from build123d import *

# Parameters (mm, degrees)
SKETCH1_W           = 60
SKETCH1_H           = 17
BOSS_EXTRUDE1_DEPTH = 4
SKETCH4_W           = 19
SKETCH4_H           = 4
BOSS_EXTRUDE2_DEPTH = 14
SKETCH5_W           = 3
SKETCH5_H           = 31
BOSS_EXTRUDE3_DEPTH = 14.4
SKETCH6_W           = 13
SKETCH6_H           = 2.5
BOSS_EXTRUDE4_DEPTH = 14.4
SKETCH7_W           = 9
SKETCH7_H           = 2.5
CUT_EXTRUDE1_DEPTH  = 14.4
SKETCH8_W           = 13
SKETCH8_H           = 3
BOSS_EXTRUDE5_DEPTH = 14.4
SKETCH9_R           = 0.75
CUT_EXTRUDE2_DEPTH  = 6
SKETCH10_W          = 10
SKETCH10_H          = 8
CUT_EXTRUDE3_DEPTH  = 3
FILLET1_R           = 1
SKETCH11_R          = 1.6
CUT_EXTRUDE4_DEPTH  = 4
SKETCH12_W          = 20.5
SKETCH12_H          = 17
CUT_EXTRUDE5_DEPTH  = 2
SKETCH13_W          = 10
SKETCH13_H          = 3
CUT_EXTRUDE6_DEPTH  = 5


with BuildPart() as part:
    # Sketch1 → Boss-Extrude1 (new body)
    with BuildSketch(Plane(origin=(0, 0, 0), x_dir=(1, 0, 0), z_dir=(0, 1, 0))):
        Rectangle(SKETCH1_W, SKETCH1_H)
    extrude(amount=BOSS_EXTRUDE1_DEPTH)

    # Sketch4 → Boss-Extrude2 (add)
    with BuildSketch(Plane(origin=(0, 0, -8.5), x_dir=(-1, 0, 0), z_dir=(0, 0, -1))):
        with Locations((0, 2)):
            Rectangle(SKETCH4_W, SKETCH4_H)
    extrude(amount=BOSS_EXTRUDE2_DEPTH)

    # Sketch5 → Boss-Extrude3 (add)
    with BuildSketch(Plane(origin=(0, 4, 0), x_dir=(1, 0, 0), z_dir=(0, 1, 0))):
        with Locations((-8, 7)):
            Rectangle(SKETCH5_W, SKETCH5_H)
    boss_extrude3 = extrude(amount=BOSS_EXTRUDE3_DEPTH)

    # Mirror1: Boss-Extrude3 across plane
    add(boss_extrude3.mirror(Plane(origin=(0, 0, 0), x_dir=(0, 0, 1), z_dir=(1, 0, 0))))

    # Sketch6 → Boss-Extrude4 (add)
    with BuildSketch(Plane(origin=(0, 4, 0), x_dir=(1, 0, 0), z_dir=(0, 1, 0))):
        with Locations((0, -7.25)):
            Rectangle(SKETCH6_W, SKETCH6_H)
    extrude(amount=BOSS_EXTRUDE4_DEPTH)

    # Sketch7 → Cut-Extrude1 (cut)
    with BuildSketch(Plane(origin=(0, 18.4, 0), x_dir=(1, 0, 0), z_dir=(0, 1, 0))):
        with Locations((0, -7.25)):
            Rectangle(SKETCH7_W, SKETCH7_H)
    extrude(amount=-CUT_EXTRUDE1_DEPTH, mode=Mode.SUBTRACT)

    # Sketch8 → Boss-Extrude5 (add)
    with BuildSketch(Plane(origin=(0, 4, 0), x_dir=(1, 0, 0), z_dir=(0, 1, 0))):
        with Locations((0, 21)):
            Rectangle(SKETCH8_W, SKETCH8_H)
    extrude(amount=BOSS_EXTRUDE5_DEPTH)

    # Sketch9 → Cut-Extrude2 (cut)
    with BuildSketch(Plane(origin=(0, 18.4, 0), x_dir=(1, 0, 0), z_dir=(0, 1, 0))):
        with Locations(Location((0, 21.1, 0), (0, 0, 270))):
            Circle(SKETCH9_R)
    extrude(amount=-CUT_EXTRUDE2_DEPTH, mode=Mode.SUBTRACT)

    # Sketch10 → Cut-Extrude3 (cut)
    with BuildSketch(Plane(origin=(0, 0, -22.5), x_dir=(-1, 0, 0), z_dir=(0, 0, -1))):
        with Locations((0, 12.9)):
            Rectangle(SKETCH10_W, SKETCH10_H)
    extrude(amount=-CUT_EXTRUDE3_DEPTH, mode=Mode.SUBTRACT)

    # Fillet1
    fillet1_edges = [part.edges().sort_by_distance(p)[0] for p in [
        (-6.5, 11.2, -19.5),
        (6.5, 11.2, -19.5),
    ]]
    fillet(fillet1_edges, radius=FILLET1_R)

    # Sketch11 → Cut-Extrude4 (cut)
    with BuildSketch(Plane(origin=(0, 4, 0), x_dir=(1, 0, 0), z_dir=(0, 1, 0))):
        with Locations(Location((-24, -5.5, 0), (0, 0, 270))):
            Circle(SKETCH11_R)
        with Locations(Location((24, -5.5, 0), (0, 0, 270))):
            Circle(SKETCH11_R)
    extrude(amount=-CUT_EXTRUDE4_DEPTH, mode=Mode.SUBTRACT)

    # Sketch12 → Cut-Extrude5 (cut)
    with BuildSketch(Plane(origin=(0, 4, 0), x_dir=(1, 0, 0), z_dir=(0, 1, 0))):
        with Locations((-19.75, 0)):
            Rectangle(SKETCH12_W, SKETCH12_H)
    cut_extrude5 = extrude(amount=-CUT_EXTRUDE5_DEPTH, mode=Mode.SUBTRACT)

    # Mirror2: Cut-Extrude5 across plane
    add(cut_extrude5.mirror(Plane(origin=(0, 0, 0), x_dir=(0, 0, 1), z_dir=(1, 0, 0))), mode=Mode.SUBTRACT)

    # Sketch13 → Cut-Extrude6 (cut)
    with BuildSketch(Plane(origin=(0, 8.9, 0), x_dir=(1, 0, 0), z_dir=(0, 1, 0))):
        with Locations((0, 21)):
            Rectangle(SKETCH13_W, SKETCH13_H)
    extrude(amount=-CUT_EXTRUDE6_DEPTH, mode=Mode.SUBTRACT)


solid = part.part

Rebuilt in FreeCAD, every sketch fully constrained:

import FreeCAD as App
import Part
import Sketcher
from FreeCAD import Vector
Q = App.Units.Quantity


def edges_at(feature, points):
    """Names of the edges that pass closest to the given points."""
    edges = feature.Shape.Edges
    near = lambda p: min(range(len(edges)), key=lambda i: edges[i].distToShape(Part.Vertex(*p))[0])
    return sorted({f"Edge{near(p) + 1}" for p in points})

doc = App.newDocument("Part")
params = doc.addObject("Spreadsheet::Sheet", "Params")
for row, (alias, value) in enumerate([
    ("sketch1_width", "60 mm"),
    ("sketch1_height", "17 mm"),
    ("pad1_length", "4 mm"),
    ("sketch2_width", "19 mm"),
    ("sketch2_height", "4 mm"),
    ("pad2_length", "14 mm"),
    ("sketch3_width", "3 mm"),
    ("sketch3_height", "31 mm"),
    ("pad3_length", "14.4 mm"),
    ("sketch4_width", "13 mm"),
    ("sketch4_height", "2.5 mm"),
    ("pad4_length", "14.4 mm"),
    ("sketch5_width", "9 mm"),
    ("sketch5_height", "2.5 mm"),
    ("pocket1_length", "14.4 mm"),
    ("sketch6_width", "13 mm"),
    ("sketch6_height", "3 mm"),
    ("pad5_length", "14.4 mm"),
    ("sketch7_diameter", "1.5 mm"),
    ("pocket2_length", "6 mm"),
    ("sketch8_width", "10 mm"),
    ("sketch8_height", "8 mm"),
    ("pocket3_length", "3 mm"),
    ("fillet_radius", "1 mm"),
    ("sketch9_diameter", "3.2 mm"),
    ("pocket4_length", "4 mm"),
    ("sketch10_height", "17 mm"),
    ("sketch10_width", "20.5 mm"),
    ("pocket5_length", "2 mm"),
    ("sketch11_width", "10 mm"),
    ("sketch11_height", "3 mm"),
    ("pocket6_length", "5 mm"),
], start=1):
    params.set(f"A{row}", alias)
    params.set(f"B{row}", "=" + value)
    params.setAlias(f"B{row}", alias)

body = doc.addObject("PartDesign::Body", "Body")

sketch1 = doc.addObject("Sketcher::SketchObject", "Sketch")
body.addObject(sketch1)
sketch1.AttachmentSupport = (doc.XZ_Plane, [""])
sketch1.MapMode = "FlatFace"
sketch1.addGeometry([
    Part.LineSegment(Vector(-30, -8, 0), Vector(-30, 8, 0)),
    Part.LineSegment(Vector(-30, 8, 0), Vector(30, 8, 0)),
    Part.LineSegment(Vector(30, 8, 0), Vector(30, -8, 0)),
    Part.LineSegment(Vector(30, -8, 0), Vector(-30, -8, 0)),
], False)
sketch1.addConstraint([
    Sketcher.Constraint("Coincident", 0, 2, 1, 1),
    Sketcher.Constraint("Coincident", 1, 2, 2, 1),
    Sketcher.Constraint("Coincident", 2, 2, 3, 1),
    Sketcher.Constraint("Coincident", 3, 2, 0, 1),
    Sketcher.Constraint("Vertical", 0),
    Sketcher.Constraint("Horizontal", 1),
    Sketcher.Constraint("Vertical", 2),
    Sketcher.Constraint("Horizontal", 3),
    Sketcher.Constraint("Symmetric", 0, 2, 2, 2, -1, 1),
    Sketcher.Constraint("DistanceX", 1, 1, 1, 2, Q("60 mm")),
    Sketcher.Constraint("DistanceY", 0, 1, 0, 2, Q("17 mm")),
])
sketch1.setExpression("Constraints[9]", "Params.sketch1_width")
sketch1.setExpression("Constraints[10]", "Params.sketch1_height")
pad1 = doc.addObject("PartDesign::Pad", "Pad")
body.addObject(pad1)
pad1.Profile = sketch1
pad1.setExpression("Length", "Params.pad1_length")
pad1.Reversed = True

sketch2 = doc.addObject("Sketcher::SketchObject", "Sketch001")
body.addObject(sketch2)
sketch2.AttachmentSupport = (doc.XY_Plane, [""])
sketch2.MapMode = "FlatFace"
sketch2.AttachmentOffset = App.Placement(Vector(0, 0, -8.5), App.Rotation())
sketch2.addGeometry([
    Part.LineSegment(Vector(9.5, 4, 0), Vector(9.5, 0, 0)),
    Part.LineSegment(Vector(9.5, 0, 0), Vector(-9.5, 0, 0)),
    Part.LineSegment(Vector(-9.5, 0, 0), Vector(-9.5, 4, 0)),
    Part.LineSegment(Vector(-9.5, 4, 0), Vector(9.5, 4, 0)),
], False)
sketch2.addConstraint([
    Sketcher.Constraint("Coincident", 0, 2, 1, 1),
    Sketcher.Constraint("Coincident", 1, 2, 2, 1),
    Sketcher.Constraint("Coincident", 2, 2, 3, 1),
    Sketcher.Constraint("Coincident", 3, 2, 0, 1),
    Sketcher.Constraint("Vertical", 0),
    Sketcher.Constraint("Horizontal", 1),
    Sketcher.Constraint("Vertical", 2),
    Sketcher.Constraint("Horizontal", 3),
    Sketcher.Constraint("Symmetric", 0, 2, 1, 2, -1, 1),
    Sketcher.Constraint("DistanceX", 1, 2, 1, 1, Q("19 mm")),
    Sketcher.Constraint("DistanceY", 0, 2, 0, 1, Q("4 mm")),
])
sketch2.setExpression("Constraints[9]", "Params.sketch2_width")
sketch2.setExpression("Constraints[10]", "Params.sketch2_height")
pad2 = doc.addObject("PartDesign::Pad", "Pad001")
body.addObject(pad2)
pad2.Profile = sketch2
pad2.setExpression("Length", "Params.pad2_length")
pad2.Reversed = True

sketch3 = doc.addObject("Sketcher::SketchObject", "Sketch002")
body.addObject(sketch3)
sketch3.AttachmentSupport = (doc.XZ_Plane, [""])
sketch3.MapMode = "FlatFace"
sketch3.AttachmentOffset = App.Placement(Vector(0, 0, -4), App.Rotation())
sketch3.addGeometry([
    Part.LineSegment(Vector(-9.5, -22.5, 0), Vector(-9.5, 8.5, 0)),
    Part.LineSegment(Vector(-9.5, 8.5, 0), Vector(-6.5, 8.5, 0)),
    Part.LineSegment(Vector(-6.5, 8.5, 0), Vector(-6.5, -22.5, 0)),
    Part.LineSegment(Vector(-6.5, -22.5, 0), Vector(-9.5, -22.5, 0)),
], False)
sketch3.addConstraint([
    Sketcher.Constraint("Coincident", 0, 2, 1, 1),
    Sketcher.Constraint("Coincident", 1, 2, 2, 1),
    Sketcher.Constraint("Coincident", 2, 2, 3, 1),
    Sketcher.Constraint("Coincident", 3, 2, 0, 1),
    Sketcher.Constraint("Vertical", 0),
    Sketcher.Constraint("Horizontal", 1),
    Sketcher.Constraint("Vertical", 2),
    Sketcher.Constraint("Horizontal", 3),
    Sketcher.Constraint("DistanceX", 1, 1, 1, 2, Q("3 mm")),
    Sketcher.Constraint("DistanceY", 0, 1, 0, 2, Q("31 mm")),
    Sketcher.Constraint("DistanceX", 0, 2, -1, 1, Q("9.5 mm")),
    Sketcher.Constraint("DistanceY", -1, 1, 0, 2, Q("8.5 mm")),
])
sketch3.setExpression("Constraints[8]", "Params.sketch3_width")
sketch3.setExpression("Constraints[9]", "Params.sketch3_height")
pad3 = doc.addObject("PartDesign::Pad", "Pad002")
body.addObject(pad3)
pad3.Profile = sketch3
pad3.setExpression("Length", "Params.pad3_length")
pad3.Reversed = True
doc.recompute()

mirrored = doc.addObject("PartDesign::Mirrored", "Mirrored")
body.addObject(mirrored)
mirrored.Originals = [pad3]
mirrored.MirrorPlane = (doc.YZ_Plane, [""])
body.Tip = mirrored

sketch4 = doc.addObject("Sketcher::SketchObject", "Sketch003")
body.addObject(sketch4)
sketch4.AttachmentSupport = (doc.XZ_Plane, [""])
sketch4.MapMode = "FlatFace"
sketch4.AttachmentOffset = App.Placement(Vector(0, 0, -4), App.Rotation())
sketch4.addGeometry([
    Part.LineSegment(Vector(-6.5, 6, 0), Vector(-6.5, 8.5, 0)),
    Part.LineSegment(Vector(-6.5, 8.5, 0), Vector(6.5, 8.5, 0)),
    Part.LineSegment(Vector(6.5, 8.5, 0), Vector(6.5, 6, 0)),
    Part.LineSegment(Vector(6.5, 6, 0), Vector(-6.5, 6, 0)),
], False)
sketch4.addConstraint([
    Sketcher.Constraint("Coincident", 0, 2, 1, 1),
    Sketcher.Constraint("Coincident", 1, 2, 2, 1),
    Sketcher.Constraint("Coincident", 2, 2, 3, 1),
    Sketcher.Constraint("Coincident", 3, 2, 0, 1),
    Sketcher.Constraint("Vertical", 0),
    Sketcher.Constraint("Horizontal", 1),
    Sketcher.Constraint("Vertical", 2),
    Sketcher.Constraint("Horizontal", 3),
    Sketcher.Constraint("DistanceX", 1, 1, 1, 2, Q("13 mm")),
    Sketcher.Constraint("DistanceY", 0, 1, 0, 2, Q("2.5 mm")),
    Sketcher.Constraint("DistanceY", -1, 1, 2, 2, Q("6 mm")),
    Sketcher.Constraint("DistanceX", 0, 2, -1, 1, Q("6.5 mm")),
])
sketch4.setExpression("Constraints[8]", "Params.sketch4_width")
sketch4.setExpression("Constraints[9]", "Params.sketch4_height")
pad4 = doc.addObject("PartDesign::Pad", "Pad003")
body.addObject(pad4)
pad4.Profile = sketch4
pad4.setExpression("Length", "Params.pad4_length")
pad4.Reversed = True

sketch5 = doc.addObject("Sketcher::SketchObject", "Sketch004")
body.addObject(sketch5)
sketch5.AttachmentSupport = (doc.XZ_Plane, [""])
sketch5.MapMode = "FlatFace"
sketch5.AttachmentOffset = App.Placement(Vector(0, 0, -18.4), App.Rotation())
sketch5.addGeometry([
    Part.LineSegment(Vector(-4.5, 6, 0), Vector(-4.5, 8.5, 0)),
    Part.LineSegment(Vector(-4.5, 8.5, 0), Vector(4.5, 8.5, 0)),
    Part.LineSegment(Vector(4.5, 8.5, 0), Vector(4.5, 6, 0)),
    Part.LineSegment(Vector(4.5, 6, 0), Vector(-4.5, 6, 0)),
], False)
sketch5.addConstraint([
    Sketcher.Constraint("Coincident", 0, 2, 1, 1),
    Sketcher.Constraint("Coincident", 1, 2, 2, 1),
    Sketcher.Constraint("Coincident", 2, 2, 3, 1),
    Sketcher.Constraint("Coincident", 3, 2, 0, 1),
    Sketcher.Constraint("Vertical", 0),
    Sketcher.Constraint("Horizontal", 1),
    Sketcher.Constraint("Vertical", 2),
    Sketcher.Constraint("Horizontal", 3),
    Sketcher.Constraint("DistanceX", 1, 1, 1, 2, Q("9 mm")),
    Sketcher.Constraint("DistanceY", 0, 1, 0, 2, Q("2.5 mm")),
    Sketcher.Constraint("DistanceY", -1, 1, 2, 2, Q("6 mm")),
    Sketcher.Constraint("DistanceX", 0, 2, -1, 1, Q("4.5 mm")),
])
sketch5.setExpression("Constraints[8]", "Params.sketch5_width")
sketch5.setExpression("Constraints[9]", "Params.sketch5_height")
pocket1 = doc.addObject("PartDesign::Pocket", "Pocket")
body.addObject(pocket1)
pocket1.Profile = sketch5
pocket1.setExpression("Length", "Params.pocket1_length")
pocket1.Reversed = True

sketch6 = doc.addObject("Sketcher::SketchObject", "Sketch005")
body.addObject(sketch6)
sketch6.AttachmentSupport = (doc.XZ_Plane, [""])
sketch6.MapMode = "FlatFace"
sketch6.AttachmentOffset = App.Placement(Vector(0, 0, -4), App.Rotation())
sketch6.addGeometry([
    Part.LineSegment(Vector(-6.5, -22.5, 0), Vector(-6.5, -19.5, 0)),
    Part.LineSegment(Vector(-6.5, -19.5, 0), Vector(6.5, -19.5, 0)),
    Part.LineSegment(Vector(6.5, -19.5, 0), Vector(6.5, -22.5, 0)),
    Part.LineSegment(Vector(6.5, -22.5, 0), Vector(-6.5, -22.5, 0)),
], False)
sketch6.addConstraint([
    Sketcher.Constraint("Coincident", 0, 2, 1, 1),
    Sketcher.Constraint("Coincident", 1, 2, 2, 1),
    Sketcher.Constraint("Coincident", 2, 2, 3, 1),
    Sketcher.Constraint("Coincident", 3, 2, 0, 1),
    Sketcher.Constraint("Vertical", 0),
    Sketcher.Constraint("Horizontal", 1),
    Sketcher.Constraint("Vertical", 2),
    Sketcher.Constraint("Horizontal", 3),
    Sketcher.Constraint("DistanceX", 1, 1, 1, 2, Q("13 mm")),
    Sketcher.Constraint("DistanceY", 0, 1, 0, 2, Q("3 mm")),
    Sketcher.Constraint("DistanceX", 0, 2, -1, 1, Q("6.5 mm")),
    Sketcher.Constraint("DistanceY", 0, 2, -1, 1, Q("19.5 mm")),
])
sketch6.setExpression("Constraints[8]", "Params.sketch6_width")
sketch6.setExpression("Constraints[9]", "Params.sketch6_height")
pad5 = doc.addObject("PartDesign::Pad", "Pad004")
body.addObject(pad5)
pad5.Profile = sketch6
pad5.setExpression("Length", "Params.pad5_length")
pad5.Reversed = True

sketch7 = doc.addObject("Sketcher::SketchObject", "Sketch006")
body.addObject(sketch7)
sketch7.AttachmentSupport = (doc.XZ_Plane, [""])
sketch7.MapMode = "FlatFace"
sketch7.AttachmentOffset = App.Placement(Vector(0, 0, -18.4), App.Rotation())
sketch7.addGeometry(Part.Circle(Vector(0, -21.1, 0), Vector(0, 0, 1), 0.8), False)
sketch7.addConstraint([
    Sketcher.Constraint("PointOnObject", 0, 3, -2),
    Sketcher.Constraint("Diameter", 0, Q("1.5 mm")),
    Sketcher.Constraint("DistanceY", 0, 3, -1, 1, Q("21.1 mm")),
])
sketch7.setExpression("Constraints[1]", "Params.sketch7_diameter")
pocket2 = doc.addObject("PartDesign::Pocket", "Pocket001")
body.addObject(pocket2)
pocket2.Profile = sketch7
pocket2.setExpression("Length", "Params.pocket2_length")
pocket2.Reversed = True

sketch8 = doc.addObject("Sketcher::SketchObject", "Sketch007")
body.addObject(sketch8)
sketch8.AttachmentSupport = (doc.XY_Plane, [""])
sketch8.MapMode = "FlatFace"
sketch8.AttachmentOffset = App.Placement(Vector(0, 0, -22.5), App.Rotation())
sketch8.addGeometry([
    Part.LineSegment(Vector(5, 17, 0), Vector(5, 9, 0)),
    Part.LineSegment(Vector(5, 9, 0), Vector(-5, 9, 0)),
    Part.LineSegment(Vector(-5, 9, 0), Vector(-5, 17, 0)),
    Part.LineSegment(Vector(-5, 17, 0), Vector(5, 17, 0)),
], False)
sketch8.addConstraint([
    Sketcher.Constraint("Coincident", 0, 2, 1, 1),
    Sketcher.Constraint("Coincident", 1, 2, 2, 1),
    Sketcher.Constraint("Coincident", 2, 2, 3, 1),
    Sketcher.Constraint("Coincident", 3, 2, 0, 1),
    Sketcher.Constraint("Vertical", 0),
    Sketcher.Constraint("Horizontal", 1),
    Sketcher.Constraint("Vertical", 2),
    Sketcher.Constraint("Horizontal", 3),
    Sketcher.Constraint("DistanceX", 1, 2, 1, 1, Q("10 mm")),
    Sketcher.Constraint("DistanceY", 0, 2, 0, 1, Q("8 mm")),
    Sketcher.Constraint("DistanceX", -1, 1, 0, 2, Q("5 mm")),
    Sketcher.Constraint("DistanceY", -1, 1, 0, 2, Q("8.9 mm")),
])
sketch8.setExpression("Constraints[8]", "Params.sketch8_width")
sketch8.setExpression("Constraints[9]", "Params.sketch8_height")
pocket3 = doc.addObject("PartDesign::Pocket", "Pocket002")
body.addObject(pocket3)
pocket3.Profile = sketch8
pocket3.setExpression("Length", "Params.pocket3_length")
pocket3.Reversed = True
doc.recompute()

fillet = doc.addObject("PartDesign::Fillet", "Fillet")
body.addObject(fillet)
fillet.Base = (pocket3, edges_at(pocket3, [(-6.5, 11.2, -19.5), (6.5, 11.2, -19.5)]))
fillet.setExpression("Radius", "Params.fillet_radius")

sketch9 = doc.addObject("Sketcher::SketchObject", "Sketch008")
body.addObject(sketch9)
sketch9.AttachmentSupport = (doc.XZ_Plane, [""])
sketch9.MapMode = "FlatFace"
sketch9.AttachmentOffset = App.Placement(Vector(0, 0, -4), App.Rotation())
sketch9.addGeometry([
    Part.Circle(Vector(-24, 5.5, 0), Vector(0, 0, 1), 1.6),
    Part.Circle(Vector(24, 5.5, 0), Vector(0, 0, 1), 1.6),
], False)
sketch9.addConstraint([
    Sketcher.Constraint("Equal", 0, 1),
    Sketcher.Constraint("Symmetric", 0, 3, 1, 3, -2),
    Sketcher.Constraint("Diameter", 0, Q("3.2 mm")),
    Sketcher.Constraint("DistanceX", 0, 3, -1, 1, Q("24 mm")),
    Sketcher.Constraint("DistanceY", -1, 1, 0, 3, Q("5.5 mm")),
])
sketch9.setExpression("Constraints[2]", "Params.sketch9_diameter")
pocket4 = doc.addObject("PartDesign::Pocket", "Pocket003")
body.addObject(pocket4)
pocket4.Profile = sketch9
pocket4.setExpression("Length", "Params.pocket4_length")
pocket4.Reversed = True

sketch10 = doc.addObject("Sketcher::SketchObject", "Sketch009")
body.addObject(sketch10)
sketch10.AttachmentSupport = (doc.XZ_Plane, [""])
sketch10.MapMode = "FlatFace"
sketch10.AttachmentOffset = App.Placement(Vector(0, 0, -4), App.Rotation())
sketch10.addGeometry([
    Part.LineSegment(Vector(-30, -8, 0), Vector(-30, 8, 0)),
    Part.LineSegment(Vector(-30, 8, 0), Vector(-10, 8, 0)),
    Part.LineSegment(Vector(-10, 8, 0), Vector(-10, -8, 0)),
    Part.LineSegment(Vector(-10, -8, 0), Vector(-30, -8, 0)),
], False)
sketch10.addConstraint([
    Sketcher.Constraint("Coincident", 0, 2, 1, 1),
    Sketcher.Constraint("Coincident", 1, 2, 2, 1),
    Sketcher.Constraint("Coincident", 2, 2, 3, 1),
    Sketcher.Constraint("Coincident", 3, 2, 0, 1),
    Sketcher.Constraint("Vertical", 0),
    Sketcher.Constraint("Horizontal", 1),
    Sketcher.Constraint("Vertical", 2),
    Sketcher.Constraint("Horizontal", 3),
    Sketcher.Constraint("DistanceY", 0, 1, 0, 2, Q("17 mm")),
    Sketcher.Constraint("DistanceX", 1, 1, 1, 2, Q("20.5 mm")),
    Sketcher.Constraint("DistanceX", 0, 2, -1, 1, Q("30 mm")),
    Sketcher.Constraint("DistanceY", -1, 1, 0, 2, Q("8.5 mm")),
])
sketch10.setExpression("Constraints[8]", "Params.sketch10_height")
sketch10.setExpression("Constraints[9]", "Params.sketch10_width")
pocket5 = doc.addObject("PartDesign::Pocket", "Pocket004")
body.addObject(pocket5)
pocket5.Profile = sketch10
pocket5.setExpression("Length", "Params.pocket5_length")
pocket5.Reversed = True
doc.recompute()

mirrored2 = doc.addObject("PartDesign::Mirrored", "Mirrored001")
body.addObject(mirrored2)
mirrored2.Originals = [pocket5]
mirrored2.MirrorPlane = (doc.YZ_Plane, [""])
body.Tip = mirrored2

sketch11 = doc.addObject("Sketcher::SketchObject", "Sketch010")
body.addObject(sketch11)
sketch11.AttachmentSupport = (doc.XZ_Plane, [""])
sketch11.MapMode = "FlatFace"
sketch11.AttachmentOffset = App.Placement(Vector(0, 0, -8.9), App.Rotation())
sketch11.addGeometry([
    Part.LineSegment(Vector(-5, -22.5, 0), Vector(-5, -19.5, 0)),
    Part.LineSegment(Vector(-5, -19.5, 0), Vector(5, -19.5, 0)),
    Part.LineSegment(Vector(5, -19.5, 0), Vector(5, -22.5, 0)),
    Part.LineSegment(Vector(5, -22.5, 0), Vector(-5, -22.5, 0)),
], False)
sketch11.addConstraint([
    Sketcher.Constraint("Coincident", 0, 2, 1, 1),
    Sketcher.Constraint("Coincident", 1, 2, 2, 1),
    Sketcher.Constraint("Coincident", 2, 2, 3, 1),
    Sketcher.Constraint("Coincident", 3, 2, 0, 1),
    Sketcher.Constraint("Vertical", 0),
    Sketcher.Constraint("Horizontal", 1),
    Sketcher.Constraint("Vertical", 2),
    Sketcher.Constraint("Horizontal", 3),
    Sketcher.Constraint("DistanceX", 1, 1, 1, 2, Q("10 mm")),
    Sketcher.Constraint("DistanceY", 0, 1, 0, 2, Q("3 mm")),
    Sketcher.Constraint("DistanceX", 0, 2, -1, 1, Q("5 mm")),
    Sketcher.Constraint("DistanceY", 0, 2, -1, 1, Q("19.5 mm")),
])
sketch11.setExpression("Constraints[8]", "Params.sketch11_width")
sketch11.setExpression("Constraints[9]", "Params.sketch11_height")
pocket6 = doc.addObject("PartDesign::Pocket", "Pocket005")
body.addObject(pocket6)
pocket6.Profile = sketch11
pocket6.setExpression("Length", "Params.pocket6_length")
pocket6.Reversed = True

doc.recompute()
